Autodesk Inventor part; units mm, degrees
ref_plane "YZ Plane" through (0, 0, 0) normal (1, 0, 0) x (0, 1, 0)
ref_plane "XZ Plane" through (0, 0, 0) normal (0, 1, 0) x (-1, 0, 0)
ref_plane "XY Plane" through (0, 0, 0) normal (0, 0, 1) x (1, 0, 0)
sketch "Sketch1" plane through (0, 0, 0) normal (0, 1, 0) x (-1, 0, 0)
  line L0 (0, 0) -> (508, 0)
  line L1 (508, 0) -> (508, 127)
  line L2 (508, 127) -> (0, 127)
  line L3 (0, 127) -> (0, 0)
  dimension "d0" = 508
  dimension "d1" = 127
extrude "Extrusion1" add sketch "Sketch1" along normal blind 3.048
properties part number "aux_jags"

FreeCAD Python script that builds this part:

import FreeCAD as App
import Part
import Sketcher
Q = App.Units.Quantity


def add_polygon(sketch, points):
    """Adds a closed chain of lines whose ends are joined by coincident constraints."""
    first, n = sketch.GeometryCount, len(points)
    for a, b in zip(points, points[1:] + points[:1]):
        sketch.addGeometry(Part.LineSegment(App.Vector(*a, 0), App.Vector(*b, 0)), False)
    for i in range(n):
        sketch.addConstraint(Sketcher.Constraint("Coincident", first + i, 2, first + (i + 1) % n, 1))

doc = App.newDocument("Part")
body = doc.addObject("PartDesign::Body", "Body")

# Sketch on XZ plane
sketch1 = doc.addObject("Sketcher::SketchObject", "Sketch")
body.addObject(sketch1)
sketch1.AttachmentSupport = (doc.XZ_Plane, [""])
sketch1.MapMode = "FlatFace"
add_polygon(sketch1, [(0, 127), (0, 0), (-508, 0), (-508, 127)])  # lines 0-3
sketch1.addConstraint(Sketcher.Constraint("Vertical", 0))
sketch1.addConstraint(Sketcher.Constraint("Horizontal", 1))
sketch1.addConstraint(Sketcher.Constraint("Vertical", 2))
sketch1.addConstraint(Sketcher.Constraint("Horizontal", 3))
sketch1.addConstraint(Sketcher.Constraint("Coincident", 0, 2, -1, 1))
sketch1.addConstraint(Sketcher.Constraint("DistanceX", 1, 2, 1, 1, Q("20 in")))
sketch1.addConstraint(Sketcher.Constraint("DistanceY", 0, 2, 0, 1, Q("5 in")))
pad1 = doc.addObject("PartDesign::Pad", "Pad")
body.addObject(pad1)
pad1.Profile = sketch1
pad1.Length = Q("0.12 in")
pad1.Reversed = True

doc.recompute()
